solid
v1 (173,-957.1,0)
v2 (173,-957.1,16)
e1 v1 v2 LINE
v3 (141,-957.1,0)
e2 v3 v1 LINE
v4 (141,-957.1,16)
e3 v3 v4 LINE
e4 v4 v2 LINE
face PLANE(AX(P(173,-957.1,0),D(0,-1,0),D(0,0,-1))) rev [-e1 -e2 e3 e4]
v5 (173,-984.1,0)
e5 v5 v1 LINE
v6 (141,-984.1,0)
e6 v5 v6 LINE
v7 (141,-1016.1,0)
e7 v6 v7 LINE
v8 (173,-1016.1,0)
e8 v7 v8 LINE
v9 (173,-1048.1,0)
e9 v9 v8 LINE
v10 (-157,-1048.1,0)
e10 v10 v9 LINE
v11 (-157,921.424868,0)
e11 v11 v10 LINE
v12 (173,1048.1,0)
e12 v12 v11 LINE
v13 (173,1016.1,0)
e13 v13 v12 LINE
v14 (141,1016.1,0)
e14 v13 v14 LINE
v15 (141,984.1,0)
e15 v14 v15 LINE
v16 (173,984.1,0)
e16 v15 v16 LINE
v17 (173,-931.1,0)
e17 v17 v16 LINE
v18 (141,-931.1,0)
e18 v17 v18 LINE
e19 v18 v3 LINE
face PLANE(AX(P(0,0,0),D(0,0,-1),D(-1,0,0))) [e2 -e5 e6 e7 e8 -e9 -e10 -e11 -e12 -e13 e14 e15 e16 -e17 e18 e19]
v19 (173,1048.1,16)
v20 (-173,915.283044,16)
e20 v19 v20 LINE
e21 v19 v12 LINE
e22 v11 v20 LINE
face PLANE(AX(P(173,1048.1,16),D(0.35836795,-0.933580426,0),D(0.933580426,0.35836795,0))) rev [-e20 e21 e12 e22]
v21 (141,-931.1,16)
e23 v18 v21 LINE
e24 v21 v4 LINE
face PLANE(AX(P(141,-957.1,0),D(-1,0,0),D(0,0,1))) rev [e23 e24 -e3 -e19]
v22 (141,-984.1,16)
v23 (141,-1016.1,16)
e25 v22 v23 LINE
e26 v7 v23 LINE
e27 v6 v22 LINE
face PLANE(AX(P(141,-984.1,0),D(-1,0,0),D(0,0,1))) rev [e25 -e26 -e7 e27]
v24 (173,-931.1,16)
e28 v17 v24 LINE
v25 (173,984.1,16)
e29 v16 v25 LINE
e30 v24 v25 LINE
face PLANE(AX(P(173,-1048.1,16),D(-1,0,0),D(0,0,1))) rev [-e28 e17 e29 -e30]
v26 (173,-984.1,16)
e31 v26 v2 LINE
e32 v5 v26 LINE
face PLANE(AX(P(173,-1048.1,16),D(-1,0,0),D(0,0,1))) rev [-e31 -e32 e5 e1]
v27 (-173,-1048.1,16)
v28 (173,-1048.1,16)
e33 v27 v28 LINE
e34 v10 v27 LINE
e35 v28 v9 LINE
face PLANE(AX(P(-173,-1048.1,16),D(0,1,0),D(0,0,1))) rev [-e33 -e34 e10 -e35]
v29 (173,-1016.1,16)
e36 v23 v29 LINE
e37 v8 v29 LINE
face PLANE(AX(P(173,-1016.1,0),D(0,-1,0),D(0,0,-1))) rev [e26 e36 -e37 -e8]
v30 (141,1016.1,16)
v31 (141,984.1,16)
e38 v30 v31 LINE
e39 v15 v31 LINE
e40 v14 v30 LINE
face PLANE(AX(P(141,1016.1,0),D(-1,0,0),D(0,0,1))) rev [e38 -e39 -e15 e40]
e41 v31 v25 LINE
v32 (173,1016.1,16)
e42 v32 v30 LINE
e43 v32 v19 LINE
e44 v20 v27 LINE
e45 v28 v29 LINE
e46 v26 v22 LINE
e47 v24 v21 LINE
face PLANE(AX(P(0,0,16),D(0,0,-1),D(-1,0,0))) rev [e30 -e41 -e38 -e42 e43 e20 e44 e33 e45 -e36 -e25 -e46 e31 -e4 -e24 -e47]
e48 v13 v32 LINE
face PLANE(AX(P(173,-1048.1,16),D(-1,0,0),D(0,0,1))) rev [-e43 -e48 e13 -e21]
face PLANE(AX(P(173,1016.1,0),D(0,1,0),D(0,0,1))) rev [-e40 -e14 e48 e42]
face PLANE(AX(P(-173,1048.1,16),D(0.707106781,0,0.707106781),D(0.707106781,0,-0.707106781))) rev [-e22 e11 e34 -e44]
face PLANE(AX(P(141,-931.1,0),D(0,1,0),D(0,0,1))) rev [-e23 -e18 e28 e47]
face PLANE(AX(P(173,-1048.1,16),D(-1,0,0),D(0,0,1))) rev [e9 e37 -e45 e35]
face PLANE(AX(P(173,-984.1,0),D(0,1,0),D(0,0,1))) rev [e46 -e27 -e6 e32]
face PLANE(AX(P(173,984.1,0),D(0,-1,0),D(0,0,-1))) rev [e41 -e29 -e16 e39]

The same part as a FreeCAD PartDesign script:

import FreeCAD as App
import Part
import Sketcher
from FreeCAD import Vector
Q = App.Units.Quantity


def add_polygon(sketch, points):
    """Adds a closed chain of lines whose ends are joined by coincident constraints."""
    first, n = sketch.GeometryCount, len(points)
    for a, b in zip(points, points[1:] + points[:1]):
        sketch.addGeometry(Part.LineSegment(App.Vector(*a, 0), App.Vector(*b, 0)), False)
    for i in range(n):
        sketch.addConstraint(Sketcher.Constraint("Coincident", first + i, 2, first + (i + 1) % n, 1))

doc = App.newDocument("Part")
body = doc.addObject("PartDesign::Body", "Body")

sketch1 = body.newObject("Sketcher::SketchObject", "Sketch")
sketch1.AttachmentSupport = (doc.getObject("XY_Plane"), [""])
sketch1.MapMode = "FlatFace"
add_polygon(sketch1, [(173, 1048), (-173, 915), (-173, -1048), (173, -1048)])
sketch1.addConstraint(Sketcher.Constraint("Vertical", 1))
sketch1.addConstraint(Sketcher.Constraint("Horizontal", 2))
sketch1.addConstraint(Sketcher.Constraint("Vertical", 3))
sketch1.addConstraint(Sketcher.Constraint("Symmetric", 1, 2, 3, 2, -1, 1))
sketch1.addConstraint(Sketcher.Constraint("DistanceX", 2, 1, 2, 2, 346.0))
sketch1.addConstraint(Sketcher.Constraint("Angle", 0, Q("-159 deg")))
sketch1.addConstraint(Sketcher.Constraint("DistanceY", 3, 1, 3, 2, 2096.2))
pad1 = body.newObject("PartDesign::Pad", "Pad")
pad1.Profile = sketch1
pad1.Length = 16

sketch2 = body.newObject("Sketcher::SketchObject", "Sketch001")
sketch2.AttachmentSupport = (doc.getObject("XZ_Plane"), [""])
sketch2.MapMode = "FlatFace"
sketch2.AttachmentOffset = App.Placement(Vector(0, 0, 1048.1), App.Rotation())
add_polygon(sketch2, [(-157, 0), (-173, 16), (-173, 0)])
sketch2.addConstraint(Sketcher.Constraint("Vertical", 1))
sketch2.addConstraint(Sketcher.Constraint("Horizontal", 2))
sketch2.addConstraint(Sketcher.Constraint("PointOnObject", 1, 2, -1))
sketch2.addConstraint(Sketcher.Constraint("Equal", 2, 1))
sketch2.addConstraint(Sketcher.Constraint("DistanceX", 2, 1, 2, 2, 16.0))
sketch2.addConstraint(Sketcher.Constraint("DistanceX", 0, 2, -1, 1, 173.0))
pocket1 = body.newObject("PartDesign::Pocket", "Pocket")
pocket1.Profile = sketch2
pocket1.Type = "ThroughAll"

sketch3 = body.newObject("Sketcher::SketchObject", "Sketch002")
sketch3.AttachmentSupport = (doc.getObject("XY_Plane"), [""])
sketch3.MapMode = "FlatFace"
sketch3.AttachmentOffset = App.Placement(Vector(0, 0, 16), App.Rotation())
add_polygon(sketch3, [(141, 1016), (141, 984), (173, 984), (173, 1016)])
add_polygon(sketch3, [(141, -984), (141, -1016), (173, -1016), (173, -984)])
add_polygon(sketch3, [(141, -931), (141, -957), (173, -957), (173, -931)])
sketch3.addConstraint(Sketcher.Constraint("Vertical", 0))
sketch3.addConstraint(Sketcher.Constraint("Horizontal", 1))
sketch3.addConstraint(Sketcher.Constraint("Vertical", 2))
sketch3.addConstraint(Sketcher.Constraint("Horizontal", 3))
sketch3.addConstraint(Sketcher.Constraint("Vertical", 4))
sketch3.addConstraint(Sketcher.Constraint("Horizontal", 5))
sketch3.addConstraint(Sketcher.Constraint("Vertical", 6))
sketch3.addConstraint(Sketcher.Constraint("Horizontal", 7))
sketch3.addConstraint(Sketcher.Constraint("Vertical", 8))
sketch3.addConstraint(Sketcher.Constraint("Horizontal", 9))
sketch3.addConstraint(Sketcher.Constraint("Vertical", 10))
sketch3.addConstraint(Sketcher.Constraint("Horizontal", 11))
sketch3.addConstraint(Sketcher.Constraint("Symmetric", 3, 2, 4, 2, -1))
sketch3.addConstraint(Sketcher.Constraint("Symmetric", 1, 2, 6, 2, -1))
sketch3.addConstraint(Sketcher.Constraint("Vertical", 7, 2, 8, 2))
sketch3.addConstraint(Sketcher.Constraint("Vertical", 6, 2, 9, 2))
sketch3.addConstraint(Sketcher.Constraint("Equal", 11, 0))
sketch3.addConstraint(Sketcher.Constraint("DistanceX", 1, 1, 1, 2, 32.0))
sketch3.addConstraint(Sketcher.Constraint("DistanceY", 8, 2, 8, 1, 26.0))
sketch3.addConstraint(Sketcher.Constraint("DistanceX", -1, 1, 0, 2, 141.0))
sketch3.addConstraint(Sketcher.Constraint("DistanceY", 7, 2, 8, 2, 27.0))
sketch3.addConstraint(Sketcher.Constraint("DistanceY", -1, 1, 0, 2, 984.1))
pocket2 = body.newObject("PartDesign::Pocket", "Pocket001")
pocket2.Profile = sketch3
pocket2.Type = "ThroughAll"

doc.recompute()
